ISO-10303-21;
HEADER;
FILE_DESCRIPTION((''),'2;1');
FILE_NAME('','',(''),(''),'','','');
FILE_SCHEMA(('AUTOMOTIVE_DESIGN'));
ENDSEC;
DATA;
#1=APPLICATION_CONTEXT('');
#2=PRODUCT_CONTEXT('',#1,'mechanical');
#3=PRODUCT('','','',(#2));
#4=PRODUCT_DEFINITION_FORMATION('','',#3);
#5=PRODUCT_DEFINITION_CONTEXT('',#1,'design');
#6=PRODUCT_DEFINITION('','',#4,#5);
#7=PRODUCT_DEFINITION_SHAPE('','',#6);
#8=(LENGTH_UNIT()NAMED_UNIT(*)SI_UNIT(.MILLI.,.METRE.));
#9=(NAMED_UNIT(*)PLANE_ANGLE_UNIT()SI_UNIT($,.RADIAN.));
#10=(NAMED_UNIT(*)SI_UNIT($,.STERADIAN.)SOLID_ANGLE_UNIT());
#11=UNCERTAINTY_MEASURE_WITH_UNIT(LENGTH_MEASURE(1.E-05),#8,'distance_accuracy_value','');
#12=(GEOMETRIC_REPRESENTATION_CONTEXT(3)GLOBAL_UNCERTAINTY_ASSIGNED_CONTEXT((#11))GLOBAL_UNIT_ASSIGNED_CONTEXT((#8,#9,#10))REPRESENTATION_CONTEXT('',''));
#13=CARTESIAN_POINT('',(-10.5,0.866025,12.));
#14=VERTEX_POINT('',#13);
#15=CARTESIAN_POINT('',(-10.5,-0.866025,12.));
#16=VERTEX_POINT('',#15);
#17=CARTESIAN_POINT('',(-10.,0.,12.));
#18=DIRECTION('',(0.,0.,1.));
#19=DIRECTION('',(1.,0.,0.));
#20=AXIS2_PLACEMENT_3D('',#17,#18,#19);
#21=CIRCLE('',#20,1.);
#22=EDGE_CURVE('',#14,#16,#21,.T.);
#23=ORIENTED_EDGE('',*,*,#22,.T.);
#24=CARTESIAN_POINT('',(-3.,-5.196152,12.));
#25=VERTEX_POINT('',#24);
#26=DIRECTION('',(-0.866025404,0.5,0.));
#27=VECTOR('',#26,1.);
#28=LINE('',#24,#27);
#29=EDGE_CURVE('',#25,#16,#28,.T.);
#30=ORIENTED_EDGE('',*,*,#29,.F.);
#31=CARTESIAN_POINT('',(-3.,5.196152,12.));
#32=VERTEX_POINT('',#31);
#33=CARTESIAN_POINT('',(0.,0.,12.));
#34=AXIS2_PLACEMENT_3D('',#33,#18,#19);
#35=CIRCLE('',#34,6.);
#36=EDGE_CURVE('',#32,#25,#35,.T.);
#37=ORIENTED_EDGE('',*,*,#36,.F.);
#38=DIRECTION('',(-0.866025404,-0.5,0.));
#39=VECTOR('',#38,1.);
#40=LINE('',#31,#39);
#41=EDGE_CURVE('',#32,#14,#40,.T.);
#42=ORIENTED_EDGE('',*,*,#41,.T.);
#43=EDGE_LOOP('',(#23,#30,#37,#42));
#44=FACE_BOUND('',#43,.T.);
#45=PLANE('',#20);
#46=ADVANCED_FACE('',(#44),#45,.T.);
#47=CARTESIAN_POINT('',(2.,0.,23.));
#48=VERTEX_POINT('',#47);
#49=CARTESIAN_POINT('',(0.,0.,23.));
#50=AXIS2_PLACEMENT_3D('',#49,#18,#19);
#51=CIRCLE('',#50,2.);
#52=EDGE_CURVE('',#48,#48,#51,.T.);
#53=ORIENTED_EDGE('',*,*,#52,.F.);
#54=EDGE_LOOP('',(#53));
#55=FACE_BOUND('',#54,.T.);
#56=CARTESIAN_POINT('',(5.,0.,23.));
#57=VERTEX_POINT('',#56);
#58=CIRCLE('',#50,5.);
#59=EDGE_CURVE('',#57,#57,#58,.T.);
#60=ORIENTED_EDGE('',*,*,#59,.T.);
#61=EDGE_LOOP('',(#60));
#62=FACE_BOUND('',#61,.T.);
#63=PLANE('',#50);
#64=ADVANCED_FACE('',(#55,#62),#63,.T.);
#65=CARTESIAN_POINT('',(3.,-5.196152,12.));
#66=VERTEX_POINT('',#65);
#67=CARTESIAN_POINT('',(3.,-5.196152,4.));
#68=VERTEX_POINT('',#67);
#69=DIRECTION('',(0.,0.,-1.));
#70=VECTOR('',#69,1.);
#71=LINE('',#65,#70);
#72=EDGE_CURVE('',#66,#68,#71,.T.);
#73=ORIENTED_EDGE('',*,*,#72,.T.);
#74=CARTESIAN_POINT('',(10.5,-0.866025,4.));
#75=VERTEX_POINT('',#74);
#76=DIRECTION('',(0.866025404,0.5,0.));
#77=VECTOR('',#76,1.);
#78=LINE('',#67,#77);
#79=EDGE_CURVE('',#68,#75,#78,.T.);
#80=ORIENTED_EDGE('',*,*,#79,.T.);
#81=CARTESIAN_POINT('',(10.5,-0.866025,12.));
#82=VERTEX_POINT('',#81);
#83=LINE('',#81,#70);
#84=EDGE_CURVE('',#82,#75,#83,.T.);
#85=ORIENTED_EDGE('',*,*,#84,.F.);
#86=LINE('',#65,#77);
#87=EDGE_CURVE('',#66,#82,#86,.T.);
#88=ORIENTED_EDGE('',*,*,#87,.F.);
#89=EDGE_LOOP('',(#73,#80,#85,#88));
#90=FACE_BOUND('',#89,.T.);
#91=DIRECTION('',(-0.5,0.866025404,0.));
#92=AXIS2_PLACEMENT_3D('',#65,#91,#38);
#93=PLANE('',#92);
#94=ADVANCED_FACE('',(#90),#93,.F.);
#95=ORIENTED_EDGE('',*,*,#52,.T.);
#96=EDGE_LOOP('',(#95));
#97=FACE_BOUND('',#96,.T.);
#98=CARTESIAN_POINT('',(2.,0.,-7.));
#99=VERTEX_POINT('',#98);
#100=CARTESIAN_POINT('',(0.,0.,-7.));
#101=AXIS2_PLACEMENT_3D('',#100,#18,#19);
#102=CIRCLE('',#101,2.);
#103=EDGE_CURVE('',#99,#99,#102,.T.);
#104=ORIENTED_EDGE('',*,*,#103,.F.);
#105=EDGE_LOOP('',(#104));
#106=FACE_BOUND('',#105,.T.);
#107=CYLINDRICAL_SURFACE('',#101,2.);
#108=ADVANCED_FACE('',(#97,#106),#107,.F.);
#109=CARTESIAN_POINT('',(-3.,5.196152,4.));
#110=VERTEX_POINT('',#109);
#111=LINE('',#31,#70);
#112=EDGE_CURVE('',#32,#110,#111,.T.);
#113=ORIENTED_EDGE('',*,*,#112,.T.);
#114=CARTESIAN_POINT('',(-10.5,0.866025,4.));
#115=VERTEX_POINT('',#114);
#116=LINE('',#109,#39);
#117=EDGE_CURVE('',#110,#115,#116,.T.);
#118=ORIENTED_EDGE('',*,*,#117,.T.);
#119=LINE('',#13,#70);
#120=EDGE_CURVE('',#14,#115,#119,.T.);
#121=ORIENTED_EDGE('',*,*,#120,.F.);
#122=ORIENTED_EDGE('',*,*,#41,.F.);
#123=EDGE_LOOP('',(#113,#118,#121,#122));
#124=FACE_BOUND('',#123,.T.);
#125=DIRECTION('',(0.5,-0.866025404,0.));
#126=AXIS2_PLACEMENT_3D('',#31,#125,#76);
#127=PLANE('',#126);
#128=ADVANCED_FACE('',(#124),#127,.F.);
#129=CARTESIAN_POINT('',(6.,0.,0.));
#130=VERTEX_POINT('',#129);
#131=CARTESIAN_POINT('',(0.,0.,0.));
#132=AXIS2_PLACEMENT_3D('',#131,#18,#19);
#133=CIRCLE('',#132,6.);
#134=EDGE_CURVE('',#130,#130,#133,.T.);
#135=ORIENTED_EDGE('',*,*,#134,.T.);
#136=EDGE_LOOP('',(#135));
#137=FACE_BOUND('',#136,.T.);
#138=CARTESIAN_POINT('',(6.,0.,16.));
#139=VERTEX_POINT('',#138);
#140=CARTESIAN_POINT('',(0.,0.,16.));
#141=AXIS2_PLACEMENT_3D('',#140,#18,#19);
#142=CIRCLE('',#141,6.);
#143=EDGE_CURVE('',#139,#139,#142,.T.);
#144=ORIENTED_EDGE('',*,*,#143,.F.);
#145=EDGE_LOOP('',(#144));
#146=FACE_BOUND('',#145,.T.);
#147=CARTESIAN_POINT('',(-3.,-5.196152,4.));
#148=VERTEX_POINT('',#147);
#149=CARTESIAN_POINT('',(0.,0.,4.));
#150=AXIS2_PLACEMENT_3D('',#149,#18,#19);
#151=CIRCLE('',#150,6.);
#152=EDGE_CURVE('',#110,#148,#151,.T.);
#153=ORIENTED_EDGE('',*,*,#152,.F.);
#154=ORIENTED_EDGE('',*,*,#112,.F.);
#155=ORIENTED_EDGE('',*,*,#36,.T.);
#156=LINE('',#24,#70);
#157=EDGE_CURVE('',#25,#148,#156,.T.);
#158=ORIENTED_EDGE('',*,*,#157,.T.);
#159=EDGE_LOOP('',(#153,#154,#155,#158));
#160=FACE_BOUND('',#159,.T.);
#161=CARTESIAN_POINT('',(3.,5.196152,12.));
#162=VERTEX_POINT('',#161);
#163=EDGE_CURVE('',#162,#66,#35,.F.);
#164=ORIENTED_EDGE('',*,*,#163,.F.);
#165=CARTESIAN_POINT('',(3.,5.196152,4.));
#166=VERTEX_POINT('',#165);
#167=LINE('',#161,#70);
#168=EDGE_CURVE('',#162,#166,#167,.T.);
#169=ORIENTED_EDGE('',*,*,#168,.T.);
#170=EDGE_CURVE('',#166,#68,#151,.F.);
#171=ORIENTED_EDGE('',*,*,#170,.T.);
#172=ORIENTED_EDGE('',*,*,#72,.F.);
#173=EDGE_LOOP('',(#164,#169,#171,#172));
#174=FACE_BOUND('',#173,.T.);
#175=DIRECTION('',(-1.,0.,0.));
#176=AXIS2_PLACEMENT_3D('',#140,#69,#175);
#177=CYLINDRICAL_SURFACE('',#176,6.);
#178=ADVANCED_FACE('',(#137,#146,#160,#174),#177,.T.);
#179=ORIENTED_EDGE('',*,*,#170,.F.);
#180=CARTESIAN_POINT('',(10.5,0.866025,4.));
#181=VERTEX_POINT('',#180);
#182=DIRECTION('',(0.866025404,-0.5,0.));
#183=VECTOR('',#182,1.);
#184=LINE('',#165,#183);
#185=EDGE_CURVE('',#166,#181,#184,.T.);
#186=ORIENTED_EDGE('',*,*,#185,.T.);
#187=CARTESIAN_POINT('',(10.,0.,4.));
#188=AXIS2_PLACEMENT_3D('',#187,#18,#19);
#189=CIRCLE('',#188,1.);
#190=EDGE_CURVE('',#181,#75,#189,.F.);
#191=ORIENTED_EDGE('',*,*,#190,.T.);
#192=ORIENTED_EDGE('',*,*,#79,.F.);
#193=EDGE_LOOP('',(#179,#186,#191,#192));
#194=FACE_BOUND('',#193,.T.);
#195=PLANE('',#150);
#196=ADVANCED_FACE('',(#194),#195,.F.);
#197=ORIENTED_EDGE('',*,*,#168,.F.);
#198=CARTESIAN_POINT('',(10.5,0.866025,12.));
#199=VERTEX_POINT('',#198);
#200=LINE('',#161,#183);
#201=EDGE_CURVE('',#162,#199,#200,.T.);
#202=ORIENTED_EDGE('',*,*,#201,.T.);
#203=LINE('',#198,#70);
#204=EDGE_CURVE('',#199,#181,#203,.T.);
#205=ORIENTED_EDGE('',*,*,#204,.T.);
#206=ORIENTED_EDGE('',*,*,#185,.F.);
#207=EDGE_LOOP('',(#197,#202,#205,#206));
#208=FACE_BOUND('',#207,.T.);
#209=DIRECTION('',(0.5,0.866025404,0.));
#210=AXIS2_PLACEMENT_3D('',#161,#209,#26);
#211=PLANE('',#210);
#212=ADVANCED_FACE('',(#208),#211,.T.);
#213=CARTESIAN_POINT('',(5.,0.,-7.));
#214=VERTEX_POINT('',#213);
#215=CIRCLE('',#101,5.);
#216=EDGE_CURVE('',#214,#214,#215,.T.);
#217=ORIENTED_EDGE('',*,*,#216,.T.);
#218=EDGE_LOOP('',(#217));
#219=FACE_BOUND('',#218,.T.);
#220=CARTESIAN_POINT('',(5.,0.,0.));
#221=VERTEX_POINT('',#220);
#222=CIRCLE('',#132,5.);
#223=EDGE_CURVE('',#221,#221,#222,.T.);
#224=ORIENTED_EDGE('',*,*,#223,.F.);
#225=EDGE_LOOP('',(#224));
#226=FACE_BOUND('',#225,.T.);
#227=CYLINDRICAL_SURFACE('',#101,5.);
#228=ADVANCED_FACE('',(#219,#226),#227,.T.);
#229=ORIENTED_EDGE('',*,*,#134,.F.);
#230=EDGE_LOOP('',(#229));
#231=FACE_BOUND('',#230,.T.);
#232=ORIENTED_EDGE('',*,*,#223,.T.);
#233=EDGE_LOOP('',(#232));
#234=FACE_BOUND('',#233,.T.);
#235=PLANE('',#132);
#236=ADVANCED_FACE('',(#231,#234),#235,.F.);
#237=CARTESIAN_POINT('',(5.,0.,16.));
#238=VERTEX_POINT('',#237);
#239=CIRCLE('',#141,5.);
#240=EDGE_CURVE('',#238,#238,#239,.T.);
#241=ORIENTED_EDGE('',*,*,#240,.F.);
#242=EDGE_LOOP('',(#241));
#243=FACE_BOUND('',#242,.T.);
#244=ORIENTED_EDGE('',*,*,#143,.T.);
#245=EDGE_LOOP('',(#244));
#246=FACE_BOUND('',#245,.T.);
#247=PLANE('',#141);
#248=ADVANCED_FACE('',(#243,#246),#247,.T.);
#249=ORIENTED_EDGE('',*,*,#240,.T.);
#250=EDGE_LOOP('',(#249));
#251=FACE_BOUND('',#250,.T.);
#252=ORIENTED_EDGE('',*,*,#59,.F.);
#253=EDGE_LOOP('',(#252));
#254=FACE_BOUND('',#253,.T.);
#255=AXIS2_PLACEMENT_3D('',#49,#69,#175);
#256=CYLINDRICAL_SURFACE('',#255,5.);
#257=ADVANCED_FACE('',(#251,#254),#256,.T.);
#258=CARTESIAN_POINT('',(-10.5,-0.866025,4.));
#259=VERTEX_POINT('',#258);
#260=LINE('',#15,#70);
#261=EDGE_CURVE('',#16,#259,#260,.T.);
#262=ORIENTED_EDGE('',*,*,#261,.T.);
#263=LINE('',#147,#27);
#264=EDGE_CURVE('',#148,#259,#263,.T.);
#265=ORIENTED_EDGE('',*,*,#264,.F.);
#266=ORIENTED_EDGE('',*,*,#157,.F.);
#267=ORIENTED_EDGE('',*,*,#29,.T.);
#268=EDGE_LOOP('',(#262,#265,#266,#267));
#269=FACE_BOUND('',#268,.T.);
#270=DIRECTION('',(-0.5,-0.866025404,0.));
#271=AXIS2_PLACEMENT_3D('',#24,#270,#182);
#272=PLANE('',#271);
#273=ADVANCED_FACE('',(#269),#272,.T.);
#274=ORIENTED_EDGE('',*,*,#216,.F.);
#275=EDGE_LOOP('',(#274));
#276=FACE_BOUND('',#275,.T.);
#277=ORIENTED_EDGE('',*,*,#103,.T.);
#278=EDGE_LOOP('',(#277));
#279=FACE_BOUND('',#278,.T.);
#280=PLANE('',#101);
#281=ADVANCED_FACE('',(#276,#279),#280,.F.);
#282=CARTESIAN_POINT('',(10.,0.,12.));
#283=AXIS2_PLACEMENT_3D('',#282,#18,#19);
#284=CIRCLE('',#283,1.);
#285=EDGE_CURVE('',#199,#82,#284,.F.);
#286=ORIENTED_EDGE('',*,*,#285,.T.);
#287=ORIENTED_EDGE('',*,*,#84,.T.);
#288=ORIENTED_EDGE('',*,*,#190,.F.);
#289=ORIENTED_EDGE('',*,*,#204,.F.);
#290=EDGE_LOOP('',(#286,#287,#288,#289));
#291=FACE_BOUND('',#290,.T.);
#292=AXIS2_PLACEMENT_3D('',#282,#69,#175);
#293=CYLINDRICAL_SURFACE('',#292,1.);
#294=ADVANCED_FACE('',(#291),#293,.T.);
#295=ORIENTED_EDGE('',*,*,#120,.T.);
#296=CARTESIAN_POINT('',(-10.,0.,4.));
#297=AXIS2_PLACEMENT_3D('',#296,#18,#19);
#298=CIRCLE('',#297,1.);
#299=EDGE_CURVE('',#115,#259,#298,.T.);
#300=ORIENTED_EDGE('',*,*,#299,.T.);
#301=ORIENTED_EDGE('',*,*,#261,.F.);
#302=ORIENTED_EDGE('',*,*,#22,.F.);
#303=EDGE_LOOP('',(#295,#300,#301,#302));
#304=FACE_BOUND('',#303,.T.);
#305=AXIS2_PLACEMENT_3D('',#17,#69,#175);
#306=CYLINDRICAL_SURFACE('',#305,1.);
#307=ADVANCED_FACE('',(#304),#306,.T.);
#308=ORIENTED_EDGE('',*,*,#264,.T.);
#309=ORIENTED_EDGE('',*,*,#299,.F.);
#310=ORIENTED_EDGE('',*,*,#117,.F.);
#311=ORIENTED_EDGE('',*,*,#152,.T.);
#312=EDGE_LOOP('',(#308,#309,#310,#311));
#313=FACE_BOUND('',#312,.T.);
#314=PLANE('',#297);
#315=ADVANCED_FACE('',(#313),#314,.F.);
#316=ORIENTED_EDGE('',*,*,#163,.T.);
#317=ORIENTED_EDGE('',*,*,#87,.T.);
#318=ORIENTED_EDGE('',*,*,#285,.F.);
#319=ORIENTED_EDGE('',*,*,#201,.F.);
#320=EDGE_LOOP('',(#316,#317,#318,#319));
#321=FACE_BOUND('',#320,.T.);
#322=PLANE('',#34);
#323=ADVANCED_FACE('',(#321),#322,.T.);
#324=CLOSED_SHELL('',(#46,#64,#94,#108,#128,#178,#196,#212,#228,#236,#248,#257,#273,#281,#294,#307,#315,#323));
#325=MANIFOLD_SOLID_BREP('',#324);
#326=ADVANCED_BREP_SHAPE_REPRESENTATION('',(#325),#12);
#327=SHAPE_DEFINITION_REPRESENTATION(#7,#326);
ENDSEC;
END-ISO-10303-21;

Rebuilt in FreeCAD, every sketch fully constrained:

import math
import FreeCAD as App
import Part
import Sketcher

V = App.Vector
Q = App.Units.Quantity

doc = App.newDocument("Part")
body = doc.addObject("PartDesign::Body", "Body")

# Sketch on XY plane
sketch1 = body.newObject("Sketcher::SketchObject", "Sketch")
sketch1.AttachmentSupport = (doc.getObject("XY_Plane"), [""])
sketch1.MapMode = "FlatFace"
sketch1.addGeometry(Part.Circle(V(0, 0, 0), V(0, 0, 1), 6), False)
sketch1.addConstraint([
    Sketcher.Constraint("Coincident", 0, 3, -1, 1),
    Sketcher.Constraint("Diameter", 0, 12.0),
])
pad1 = body.newObject("PartDesign::Pad", "Pad")
pad1.Profile = sketch1
pad1.Length = 16

# Sketch on XY plane
sketch2 = body.newObject("Sketcher::SketchObject", "Sketch001")
sketch2.AttachmentSupport = (doc.getObject("XY_Plane"), [""])
sketch2.MapMode = "FlatFace"
sketch2.AttachmentOffset = App.Placement(V(0, 0, 4), App.Rotation())
sketch2.addGeometry([
    Part.LineSegment(V(10.5, 0.9, 0), V(3, 5.2, 0)),  # 0
    Part.ArcOfCircle(Part.Circle(V(0, 0, 0), V(0, 0, 1), 6), math.radians(-60), math.radians(60)),  # 1
    Part.LineSegment(V(3, -5.2, 0), V(10.5, -0.9, 0)),  # 2
    Part.ArcOfCircle(Part.Circle(V(10, 0, 0), V(0, 0, 1), 1), math.radians(-60), math.radians(60)),  # 3
    Part.LineSegment(V(-10.5, -0.9, 0), V(-3, -5.2, 0)),  # 4
    Part.ArcOfCircle(Part.Circle(V(0, 0, 0), V(0, 0, 1), 6), math.radians(120), math.radians(240)),  # 5
    Part.LineSegment(V(-3, 5.2, 0), V(-10.5, 0.9, 0)),  # 6
    Part.ArcOfCircle(Part.Circle(V(-10, 0, 0), V(0, 0, 1), 1), math.radians(120), math.radians(240)),  # 7
], False)
sketch2.addConstraint([
    Sketcher.Constraint("Tangent", 0, 2, 1, 2),
    Sketcher.Constraint("Tangent", 1, 1, 2, 1),
    Sketcher.Constraint("Tangent", 2, 2, 3, 1),
    Sketcher.Constraint("Tangent", 3, 2, 0, 1),
    Sketcher.Constraint("Tangent", 4, 2, 5, 2),
    Sketcher.Constraint("Tangent", 5, 1, 6, 1),
    Sketcher.Constraint("Tangent", 6, 2, 7, 1),
    Sketcher.Constraint("Tangent", 7, 2, 4, 1),
    Sketcher.Constraint("Coincident", 1, 3, -1, 1),
    Sketcher.Constraint("Coincident", 5, 3, -1, 1),
    Sketcher.Constraint("Equal", 1, 5),
    Sketcher.Constraint("Equal", 3, 7),
    Sketcher.Constraint("Symmetric", 3, 3, 7, 3, -1, 1),
    Sketcher.Constraint("PointOnObject", 3, 3, -1),
    Sketcher.Constraint("Radius", 1, 6.0),
    Sketcher.Constraint("Radius", 3, 1.0),
    Sketcher.Constraint("Angle", 0, Q("150 deg")),
])
pad2 = body.newObject("PartDesign::Pad", "Pad001")
pad2.Profile = sketch2
pad2.Length = 8

# Sketch on XY plane
sketch3 = body.newObject("Sketcher::SketchObject", "Sketch002")
sketch3.AttachmentSupport = (doc.getObject("XY_Plane"), [""])
sketch3.MapMode = "FlatFace"
sketch3.AttachmentOffset = App.Placement(V(0, 0, 16), App.Rotation())
sketch3.addGeometry(Part.Circle(V(0, 0, 0), V(0, 0, 1), 5), False)
sketch3.addConstraint([
    Sketcher.Constraint("Coincident", 0, 3, -1, 1),
    Sketcher.Constraint("Diameter", 0, 10.0),
])
pad3 = body.newObject("PartDesign::Pad", "Pad002")
pad3.Profile = sketch3
pad3.Length = 7

# Sketch on XY plane
sketch4 = body.newObject("Sketcher::SketchObject", "Sketch003")
sketch4.AttachmentSupport = (doc.getObject("XY_Plane"), [""])
sketch4.MapMode = "FlatFace"
sketch4.AttachmentOffset = App.Placement(V(0, 0, -7), App.Rotation())
sketch4.addGeometry(Part.Circle(V(0, 0, 0), V(0, 0, 1), 5), False)
sketch4.addConstraint([
    Sketcher.Constraint("Coincident", 0, 3, -1, 1),
    Sketcher.Constraint("Diameter", 0, 10.0),
])
pad4 = body.newObject("PartDesign::Pad", "Pad003")
pad4.Profile = sketch4
pad4.Length = 7

# Sketch on XY plane
sketch5 = body.newObject("Sketcher::SketchObject", "Sketch004")
sketch5.AttachmentSupport = (doc.getObject("XY_Plane"), [""])
sketch5.MapMode = "FlatFace"
sketch5.AttachmentOffset = App.Placement(V(0, 0, 23), App.Rotation())
sketch5.addGeometry(Part.Circle(V(0, 0, 0), V(0, 0, 1), 2), False)
sketch5.addConstraint([
    Sketcher.Constraint("Coincident", 0, 3, -1, 1),
    Sketcher.Constraint("Diameter", 0, 4.0),
])
pocket1 = body.newObject("PartDesign::Pocket", "Pocket")
pocket1.Profile = sketch5
pocket1.Type = "ThroughAll"

doc.recompute()
